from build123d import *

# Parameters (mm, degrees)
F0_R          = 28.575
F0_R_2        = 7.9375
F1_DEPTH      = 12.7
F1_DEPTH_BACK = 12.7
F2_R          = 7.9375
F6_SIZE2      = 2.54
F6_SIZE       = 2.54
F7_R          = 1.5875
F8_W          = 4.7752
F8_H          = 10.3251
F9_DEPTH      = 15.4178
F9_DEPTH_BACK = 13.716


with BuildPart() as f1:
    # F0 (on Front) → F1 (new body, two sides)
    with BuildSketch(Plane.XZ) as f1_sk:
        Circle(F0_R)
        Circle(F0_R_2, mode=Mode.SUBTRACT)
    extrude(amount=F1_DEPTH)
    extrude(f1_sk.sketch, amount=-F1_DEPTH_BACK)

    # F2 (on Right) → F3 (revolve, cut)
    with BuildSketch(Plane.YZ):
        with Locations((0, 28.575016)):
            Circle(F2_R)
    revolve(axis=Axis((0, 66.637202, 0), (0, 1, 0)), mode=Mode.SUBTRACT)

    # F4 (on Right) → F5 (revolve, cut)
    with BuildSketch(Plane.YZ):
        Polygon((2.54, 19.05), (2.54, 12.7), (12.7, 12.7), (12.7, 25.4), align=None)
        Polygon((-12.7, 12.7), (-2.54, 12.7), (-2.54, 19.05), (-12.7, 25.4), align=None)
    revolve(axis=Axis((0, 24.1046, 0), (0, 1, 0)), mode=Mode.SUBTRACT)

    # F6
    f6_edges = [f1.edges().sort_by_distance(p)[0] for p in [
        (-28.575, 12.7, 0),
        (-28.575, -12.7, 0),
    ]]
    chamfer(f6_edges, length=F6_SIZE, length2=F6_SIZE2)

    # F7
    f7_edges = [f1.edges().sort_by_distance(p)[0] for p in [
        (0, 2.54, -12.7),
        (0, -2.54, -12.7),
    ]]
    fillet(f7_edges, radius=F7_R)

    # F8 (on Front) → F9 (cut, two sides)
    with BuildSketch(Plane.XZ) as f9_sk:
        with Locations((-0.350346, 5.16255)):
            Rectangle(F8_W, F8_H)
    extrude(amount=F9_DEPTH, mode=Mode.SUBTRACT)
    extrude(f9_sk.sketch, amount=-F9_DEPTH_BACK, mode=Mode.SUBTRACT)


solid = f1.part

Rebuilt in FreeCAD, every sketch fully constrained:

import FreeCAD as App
import Part
import Sketcher
from FreeCAD import Vector
Q = App.Units.Quantity


def edges_at(feature, points):
    """Names of the edges that pass closest to the given points."""
    edges = feature.Shape.Edges
    near = lambda p: min(range(len(edges)), key=lambda i: edges[i].distToShape(Part.Vertex(*p))[0])
    return sorted({f"Edge{near(p) + 1}" for p in points})


def add_polygon(sketch, points):
    """Adds a closed chain of lines whose ends are joined by coincident constraints."""
    first, n = sketch.GeometryCount, len(points)
    for a, b in zip(points, points[1:] + points[:1]):
        sketch.addGeometry(Part.LineSegment(App.Vector(*a, 0), App.Vector(*b, 0)), False)
    for i in range(n):
        sketch.addConstraint(Sketcher.Constraint("Coincident", first + i, 2, first + (i + 1) % n, 1))

doc = App.newDocument("Part")
params = doc.addObject("Spreadsheet::Sheet", "Params")
for row, (alias, value) in enumerate([
    ("sketch1_diameter", "2.25 in"),
    ("sketch1_diameter2", "0.625 in"),
    ("pad1_length", "0.5 in"),
    ("pad1_length2", "0.5 in"),
    ("sketch2_diameter", "0.625 in"),
    ("groove_angle", "360 deg"),
    ("sketch3_width", "0.4 in"),
    ("sketch3_height", "0.5 in"),
    ("sketch3_height2", "0.25 in"),
    ("groove2_angle", "360 deg"),
    ("chamfer_size", "0.1 in"),
    ("chamfer_size2", "0.1 in"),
    ("fillet_radius", "0.0625 in"),
    ("sketch4_width", "0.188 in"),
], start=1):
    params.set(f"A{row}", alias)
    params.set(f"B{row}", "=" + value)
    params.setAlias(f"B{row}", alias)

body = doc.addObject("PartDesign::Body", "Body")

# Sketch on XZ plane
sketch1 = doc.addObject("Sketcher::SketchObject", "Sketch")
body.addObject(sketch1)
sketch1.AttachmentSupport = (doc.XZ_Plane, [""])
sketch1.MapMode = "FlatFace"
sketch1.addGeometry([
    Part.Circle(Vector(0, 0, 0), Vector(0, 0, 1), 28.575),
    Part.Circle(Vector(0, 0, 0), Vector(0, 0, 1), 7.9375),
], False)
sketch1.addConstraint([
    Sketcher.Constraint("Coincident", 0, 3, -1, 1),
    Sketcher.Constraint("Coincident", 1, 3, -1, 1),
    Sketcher.Constraint("Diameter", 0, Q("2.25 in")),
    Sketcher.Constraint("Diameter", 1, Q("0.625 in")),
])
sketch1.setExpression("Constraints[2]", "Params.sketch1_diameter")
sketch1.setExpression("Constraints[3]", "Params.sketch1_diameter2")
pad1 = doc.addObject("PartDesign::Pad", "Pad")
body.addObject(pad1)
pad1.Profile = sketch1
pad1.Type = "TwoLengths"
pad1.setExpression("Length", "Params.pad1_length")
pad1.setExpression("Length2", "Params.pad1_length2")

# Sketch on YZ plane
sketch2 = doc.addObject("Sketcher::SketchObject", "Sketch001")
body.addObject(sketch2)
sketch2.AttachmentSupport = (doc.YZ_Plane, [""])
sketch2.MapMode = "FlatFace"
sketch2.addGeometry(Part.Circle(Vector(0, 28.575016, 0), Vector(0, 0, 1), 7.9375), False)
sketch2.addConstraint([
    Sketcher.Constraint("PointOnObject", 0, 3, -2),
    Sketcher.Constraint("Diameter", 0, Q("0.625 in")),
    Sketcher.Constraint("DistanceY", -1, 1, 0, 3, Q("28.575016 mm")),
])
sketch2.setExpression("Constraints[1]", "Params.sketch2_diameter")
groove = doc.addObject("PartDesign::Groove", "Groove")
body.addObject(groove)
groove.Profile = sketch2
groove.ReferenceAxis = (sketch2, ["H_Axis"])
groove.setExpression("Angle", "Params.groove_angle")

# Sketch on YZ plane
sketch3 = doc.addObject("Sketcher::SketchObject", "Sketch002")
body.addObject(sketch3)
sketch3.AttachmentSupport = (doc.YZ_Plane, [""])
sketch3.MapMode = "FlatFace"
add_polygon(sketch3, [(2.54, 19.05), (2.54, 12.7), (12.7, 12.7), (12.7, 25.4)])  # lines 0-3
add_polygon(sketch3, [(-12.7, 12.7), (-2.54, 12.7), (-2.54, 19.05), (-12.7, 25.4)])  # lines 4-7
sketch3.addConstraint([
    Sketcher.Constraint("Vertical", 0),
    Sketcher.Constraint("Horizontal", 1),
    Sketcher.Constraint("Vertical", 2),
    Sketcher.Constraint("Horizontal", 4),
    Sketcher.Constraint("Vertical", 5),
    Sketcher.Constraint("Vertical", 7),
    Sketcher.Constraint("Symmetric", 0, 2, 4, 2, -2),
    Sketcher.Constraint("Symmetric", 2, 2, 6, 2, -2),
    Sketcher.Constraint("Horizontal", 3, 2, 5, 2),
    Sketcher.Constraint("DistanceX", 1, 1, 1, 2, Q("0.4 in")),
    Sketcher.Constraint("DistanceY", 2, 1, 2, 2, Q("0.5 in")),
    Sketcher.Constraint("DistanceY", -1, 1, 2, 2, Q("1 in")),
    Sketcher.Constraint("DistanceX", 6, 2, 2, 2, Q("1 in")),
    Sketcher.Constraint("DistanceY", 0, 2, 0, 1, Q("0.25 in")),
])
sketch3.setExpression("Constraints[17]", "Params.sketch3_width")
sketch3.setExpression("Constraints[18]", "Params.sketch3_height")
sketch3.setExpression("Constraints[21]", "Params.sketch3_height2")
groove2 = doc.addObject("PartDesign::Groove", "Groove001")
body.addObject(groove2)
groove2.Profile = sketch3
groove2.ReferenceAxis = (sketch3, ["H_Axis"])
groove2.setExpression("Angle", "Params.groove2_angle")
doc.recompute()

chamfer = doc.addObject("PartDesign::Chamfer", "Chamfer")
body.addObject(chamfer)
chamfer.Base = (groove2, edges_at(groove2, [(-28.575, 12.7, 0), (-28.575, -12.7, 0)]))
chamfer.ChamferType = "Two distances"
chamfer.setExpression("Size", "Params.chamfer_size")
chamfer.setExpression("Size2", "Params.chamfer_size2")
doc.recompute()

fillet = doc.addObject("PartDesign::Fillet", "Fillet")
body.addObject(fillet)
fillet.Base = (chamfer, edges_at(chamfer, [(0, 2.54, -12.7), (0, -2.54, -12.7)]))
fillet.setExpression("Radius", "Params.fillet_radius")

# Sketch on XZ plane
sketch4 = doc.addObject("Sketcher::SketchObject", "Sketch003")
body.addObject(sketch4)
sketch4.AttachmentSupport = (doc.XZ_Plane, [""])
sketch4.MapMode = "FlatFace"
add_polygon(sketch4, [(-2.737946, 10.3251), (-2.737946, 0), (2.037254, 0), (2.037254, 10.3251)])  # lines 0-3
sketch4.addConstraint([
    Sketcher.Constraint("Vertical", 0),
    Sketcher.Constraint("Horizontal", 1),
    Sketcher.Constraint("Vertical", 2),
    Sketcher.Constraint("Horizontal", 3),
    Sketcher.Constraint("PointOnObject", 0, 2, -1),
    Sketcher.Constraint("DistanceX", 1, 1, 1, 2, Q("0.188 in")),
    Sketcher.Constraint("DistanceY", 0, 2, 0, 1, Q("0.4065 in")),
    Sketcher.Constraint("DistanceX", 0, 2, -1, 1, Q("2.737946 mm")),
])
sketch4.setExpression("Constraints[9]", "Params.sketch4_width")
pocket1 = doc.addObject("PartDesign::Pocket", "Pocket")
body.addObject(pocket1)
pocket1.Profile = sketch4
pocket1.Type = "ThroughAll"
pocket1.Midplane = True

doc.recompute()
